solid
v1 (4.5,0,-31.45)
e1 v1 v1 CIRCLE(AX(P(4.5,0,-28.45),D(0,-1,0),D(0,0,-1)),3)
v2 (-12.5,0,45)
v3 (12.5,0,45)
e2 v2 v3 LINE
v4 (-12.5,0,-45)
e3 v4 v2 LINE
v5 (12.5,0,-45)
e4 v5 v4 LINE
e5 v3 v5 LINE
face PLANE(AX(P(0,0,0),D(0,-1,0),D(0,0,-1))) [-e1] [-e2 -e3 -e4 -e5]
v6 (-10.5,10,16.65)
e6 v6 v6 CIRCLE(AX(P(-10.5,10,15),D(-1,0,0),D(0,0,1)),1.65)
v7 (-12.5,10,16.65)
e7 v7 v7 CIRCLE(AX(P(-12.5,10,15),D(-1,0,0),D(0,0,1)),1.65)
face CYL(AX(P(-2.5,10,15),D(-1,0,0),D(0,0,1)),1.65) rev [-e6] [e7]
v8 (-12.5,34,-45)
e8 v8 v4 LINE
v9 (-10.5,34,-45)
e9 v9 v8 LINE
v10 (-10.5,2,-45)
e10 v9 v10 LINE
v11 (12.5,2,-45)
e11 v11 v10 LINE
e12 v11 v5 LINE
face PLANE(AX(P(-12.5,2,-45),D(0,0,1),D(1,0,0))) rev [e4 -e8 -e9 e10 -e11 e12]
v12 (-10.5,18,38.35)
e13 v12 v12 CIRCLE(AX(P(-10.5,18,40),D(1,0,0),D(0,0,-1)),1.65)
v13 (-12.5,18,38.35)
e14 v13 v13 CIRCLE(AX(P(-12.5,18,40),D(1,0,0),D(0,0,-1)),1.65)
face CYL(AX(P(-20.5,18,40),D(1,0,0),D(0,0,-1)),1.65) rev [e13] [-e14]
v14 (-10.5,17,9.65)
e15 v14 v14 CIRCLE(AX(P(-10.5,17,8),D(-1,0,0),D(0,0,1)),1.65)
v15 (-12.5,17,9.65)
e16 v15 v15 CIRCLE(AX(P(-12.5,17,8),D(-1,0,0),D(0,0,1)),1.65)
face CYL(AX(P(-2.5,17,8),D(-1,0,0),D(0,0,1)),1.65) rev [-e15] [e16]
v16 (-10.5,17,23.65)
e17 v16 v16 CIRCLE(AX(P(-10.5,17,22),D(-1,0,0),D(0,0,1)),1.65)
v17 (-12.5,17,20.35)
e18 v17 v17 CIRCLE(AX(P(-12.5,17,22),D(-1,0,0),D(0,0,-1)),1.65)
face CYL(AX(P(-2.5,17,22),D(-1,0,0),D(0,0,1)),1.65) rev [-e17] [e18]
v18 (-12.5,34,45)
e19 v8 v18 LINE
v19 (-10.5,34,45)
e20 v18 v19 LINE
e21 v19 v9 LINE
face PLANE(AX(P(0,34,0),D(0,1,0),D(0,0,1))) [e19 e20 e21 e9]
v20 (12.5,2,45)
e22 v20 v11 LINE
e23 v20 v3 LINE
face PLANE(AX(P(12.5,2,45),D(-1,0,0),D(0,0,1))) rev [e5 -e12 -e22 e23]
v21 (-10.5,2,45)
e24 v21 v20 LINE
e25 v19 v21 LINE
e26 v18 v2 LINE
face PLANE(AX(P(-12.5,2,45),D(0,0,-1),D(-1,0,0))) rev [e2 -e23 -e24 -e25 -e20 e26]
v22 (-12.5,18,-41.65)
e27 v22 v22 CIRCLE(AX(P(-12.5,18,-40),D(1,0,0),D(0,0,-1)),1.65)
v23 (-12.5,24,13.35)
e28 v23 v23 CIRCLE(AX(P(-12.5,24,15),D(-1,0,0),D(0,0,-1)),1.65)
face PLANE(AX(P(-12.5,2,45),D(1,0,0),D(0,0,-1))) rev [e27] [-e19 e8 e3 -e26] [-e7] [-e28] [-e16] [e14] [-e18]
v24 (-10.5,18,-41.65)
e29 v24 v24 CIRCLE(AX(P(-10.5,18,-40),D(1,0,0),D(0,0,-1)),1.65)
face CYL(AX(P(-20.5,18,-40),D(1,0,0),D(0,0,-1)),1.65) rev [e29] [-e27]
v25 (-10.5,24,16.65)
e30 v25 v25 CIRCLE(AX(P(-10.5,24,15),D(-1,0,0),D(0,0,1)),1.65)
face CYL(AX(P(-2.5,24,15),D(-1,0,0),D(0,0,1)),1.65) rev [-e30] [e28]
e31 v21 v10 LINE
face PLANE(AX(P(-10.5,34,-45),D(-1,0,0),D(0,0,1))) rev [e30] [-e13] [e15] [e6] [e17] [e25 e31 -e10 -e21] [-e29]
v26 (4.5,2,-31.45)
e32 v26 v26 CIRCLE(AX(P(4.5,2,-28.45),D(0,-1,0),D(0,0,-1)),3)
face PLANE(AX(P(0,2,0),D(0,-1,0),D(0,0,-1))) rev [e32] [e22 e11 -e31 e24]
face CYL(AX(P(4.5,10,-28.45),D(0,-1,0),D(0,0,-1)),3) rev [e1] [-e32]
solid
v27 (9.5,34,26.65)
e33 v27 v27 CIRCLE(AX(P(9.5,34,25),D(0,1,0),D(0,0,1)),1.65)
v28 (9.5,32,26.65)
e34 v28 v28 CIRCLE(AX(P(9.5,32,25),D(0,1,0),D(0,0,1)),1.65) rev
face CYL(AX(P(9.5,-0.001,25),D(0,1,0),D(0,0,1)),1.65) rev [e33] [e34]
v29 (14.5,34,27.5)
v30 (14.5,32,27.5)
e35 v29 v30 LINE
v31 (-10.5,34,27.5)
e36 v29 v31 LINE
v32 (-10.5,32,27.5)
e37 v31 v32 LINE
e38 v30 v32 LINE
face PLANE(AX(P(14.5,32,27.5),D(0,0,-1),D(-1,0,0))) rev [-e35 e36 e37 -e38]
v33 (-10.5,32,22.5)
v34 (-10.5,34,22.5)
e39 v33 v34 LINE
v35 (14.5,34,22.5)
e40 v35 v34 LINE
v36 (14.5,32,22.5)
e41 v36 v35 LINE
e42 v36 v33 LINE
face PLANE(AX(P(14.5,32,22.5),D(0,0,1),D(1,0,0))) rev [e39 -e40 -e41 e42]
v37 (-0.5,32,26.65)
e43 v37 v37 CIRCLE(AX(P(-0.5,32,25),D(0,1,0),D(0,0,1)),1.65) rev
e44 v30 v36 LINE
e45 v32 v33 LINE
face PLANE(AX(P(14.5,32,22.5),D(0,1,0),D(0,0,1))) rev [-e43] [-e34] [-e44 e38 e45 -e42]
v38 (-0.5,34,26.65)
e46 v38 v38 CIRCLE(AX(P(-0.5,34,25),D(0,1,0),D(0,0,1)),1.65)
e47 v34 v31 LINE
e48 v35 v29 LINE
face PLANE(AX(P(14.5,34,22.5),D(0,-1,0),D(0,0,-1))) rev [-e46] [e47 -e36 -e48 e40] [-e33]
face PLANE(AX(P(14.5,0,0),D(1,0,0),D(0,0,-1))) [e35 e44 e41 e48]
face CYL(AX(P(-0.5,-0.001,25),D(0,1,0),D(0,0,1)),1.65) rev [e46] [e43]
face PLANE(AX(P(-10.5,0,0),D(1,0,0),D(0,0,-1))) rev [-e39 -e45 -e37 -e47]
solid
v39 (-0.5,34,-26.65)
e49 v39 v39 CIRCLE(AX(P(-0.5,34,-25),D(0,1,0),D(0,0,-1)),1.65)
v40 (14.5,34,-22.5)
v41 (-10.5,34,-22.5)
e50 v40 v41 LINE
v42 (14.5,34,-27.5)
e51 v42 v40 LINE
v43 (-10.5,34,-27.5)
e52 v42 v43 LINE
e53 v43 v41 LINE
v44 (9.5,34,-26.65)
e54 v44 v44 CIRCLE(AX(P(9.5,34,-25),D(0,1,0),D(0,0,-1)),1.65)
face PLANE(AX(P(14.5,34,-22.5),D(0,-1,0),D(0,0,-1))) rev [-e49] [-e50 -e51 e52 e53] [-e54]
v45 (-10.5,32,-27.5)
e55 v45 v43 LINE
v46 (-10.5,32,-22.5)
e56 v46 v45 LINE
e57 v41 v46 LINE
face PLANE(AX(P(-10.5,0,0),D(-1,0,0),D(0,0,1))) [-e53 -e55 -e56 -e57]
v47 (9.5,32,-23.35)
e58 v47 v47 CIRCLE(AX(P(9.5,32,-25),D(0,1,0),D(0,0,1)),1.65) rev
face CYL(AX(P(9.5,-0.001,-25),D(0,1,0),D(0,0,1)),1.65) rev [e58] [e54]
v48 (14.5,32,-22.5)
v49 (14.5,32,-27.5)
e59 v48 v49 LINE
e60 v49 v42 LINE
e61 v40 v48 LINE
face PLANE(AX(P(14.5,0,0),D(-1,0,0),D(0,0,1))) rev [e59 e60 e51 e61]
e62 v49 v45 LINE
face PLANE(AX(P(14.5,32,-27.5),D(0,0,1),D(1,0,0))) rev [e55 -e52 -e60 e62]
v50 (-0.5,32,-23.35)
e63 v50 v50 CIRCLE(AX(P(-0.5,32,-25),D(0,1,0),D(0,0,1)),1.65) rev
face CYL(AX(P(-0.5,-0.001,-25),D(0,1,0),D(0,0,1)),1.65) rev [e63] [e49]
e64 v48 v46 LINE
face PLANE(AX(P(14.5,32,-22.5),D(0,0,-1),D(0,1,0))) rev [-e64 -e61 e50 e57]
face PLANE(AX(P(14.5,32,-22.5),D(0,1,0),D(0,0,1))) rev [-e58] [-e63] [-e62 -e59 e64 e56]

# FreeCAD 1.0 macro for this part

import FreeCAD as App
import Part
import Sketcher
from FreeCAD import Vector
Q = App.Units.Quantity

doc = App.newDocument("Part")
body = doc.addObject("PartDesign::Body", "Body")

# Sketch on XZ plane
sketch1 = body.newObject("Sketcher::SketchObject", "Sketch")
sketch1.AttachmentSupport = (doc.getObject("XZ_Plane"), [""])
sketch1.MapMode = "FlatFace"
sketch1.addGeometry([
    Part.LineSegment(Vector(-12.5, -45, 0), Vector(-12.5, 45, 0)),
    Part.LineSegment(Vector(-12.5, 45, 0), Vector(12.5, 45, 0)),
    Part.LineSegment(Vector(12.5, 45, 0), Vector(12.5, -45, 0)),
    Part.LineSegment(Vector(12.5, -45, 0), Vector(-12.5, -45, 0)),
], False)
sketch1.addConstraint([
    Sketcher.Constraint("Coincident", 0, 2, 1, 1),
    Sketcher.Constraint("Coincident", 1, 2, 2, 1),
    Sketcher.Constraint("Coincident", 2, 2, 3, 1),
    Sketcher.Constraint("Coincident", 3, 2, 0, 1),
    Sketcher.Constraint("Vertical", 0),
    Sketcher.Constraint("Horizontal", 1),
    Sketcher.Constraint("Vertical", 2),
    Sketcher.Constraint("Horizontal", 3),
    Sketcher.Constraint("Symmetric", 0, 2, 2, 2, -1, 1),
    Sketcher.Constraint("DistanceX", 1, 1, 1, 2, Q("25 mm")),
    Sketcher.Constraint("DistanceY", 0, 1, 0, 2, Q("90 mm")),
])
pad1 = body.newObject("PartDesign::Pad", "Pad")
pad1.Profile = sketch1
pad1.Length = 2
pad1.Reversed = True

# Sketch on XZ plane
sketch2 = body.newObject("Sketcher::SketchObject", "Sketch001")
sketch2.AttachmentSupport = (doc.getObject("XZ_Plane"), [""])
sketch2.MapMode = "FlatFace"
sketch2.AttachmentOffset = App.Placement(Vector(0, 0, -2), App.Rotation())
sketch2.addGeometry([
    Part.LineSegment(Vector(-12.5, -45, 0), Vector(-12.5, 45, 0)),
    Part.LineSegment(Vector(-12.5, 45, 0), Vector(-10.5, 45, 0)),
    Part.LineSegment(Vector(-10.5, 45, 0), Vector(-10.5, -45, 0)),
    Part.LineSegment(Vector(-10.5, -45, 0), Vector(-12.5, -45, 0)),
], False)
sketch2.addConstraint([
    Sketcher.Constraint("Coincident", 0, 2, 1, 1),
    Sketcher.Constraint("Coincident", 1, 2, 2, 1),
    Sketcher.Constraint("Coincident", 2, 2, 3, 1),
    Sketcher.Constraint("Coincident", 3, 2, 0, 1),
    Sketcher.Constraint("Vertical", 0),
    Sketcher.Constraint("Horizontal", 1),
    Sketcher.Constraint("Vertical", 2),
    Sketcher.Constraint("Horizontal", 3),
    Sketcher.Constraint("DistanceX", 1, 1, 1, 2, Q("2 mm")),
    Sketcher.Constraint("DistanceY", 0, 1, 0, 2, Q("90 mm")),
    Sketcher.Constraint("DistanceY", -1, 1, 0, 2, Q("45 mm")),
    Sketcher.Constraint("DistanceX", 0, 2, -1, 1, Q("12.5 mm")),
])
pad2 = body.newObject("PartDesign::Pad", "Pad001")
pad2.Profile = sketch2
pad2.Length = 32
pad2.Reversed = True

# Sketch on YZ plane
sketch3 = body.newObject("Sketcher::SketchObject", "Sketch002")
sketch3.AttachmentSupport = (doc.getObject("YZ_Plane"), [""])
sketch3.MapMode = "FlatFace"
sketch3.AttachmentOffset = App.Placement(Vector(0, 0, -12.5), App.Rotation())
sketch3.addGeometry([
    Part.Circle(Vector(17, 8, 0), Vector(0, 0, 1), 1.65),
    Part.Circle(Vector(17, 22, 0), Vector(0, 0, 1), 1.65),
    Part.Circle(Vector(10, 15, 0), Vector(0, 0, 1), 1.65),
    Part.Circle(Vector(24, 15, 0), Vector(0, 0, 1), 1.65),
], False)
sketch3.addConstraint([
    Sketcher.Constraint("Equal", 0, 1),
    Sketcher.Constraint("Equal", 1, 2),
    Sketcher.Constraint("Equal", 2, 3),
    Sketcher.Constraint("Horizontal", 2, 3, 3, 3),
    Sketcher.Constraint("Vertical", 0, 3, 1, 3),
    Sketcher.Constraint("Diameter", 0, Q("3.3 mm")),
    Sketcher.Constraint("DistanceX", -1, 1, 0, 3, Q("17 mm")),
    Sketcher.Constraint("DistanceY", -1, 1, 0, 3, Q("8 mm")),
    Sketcher.Constraint("DistanceY", -1, 1, 1, 3, Q("22 mm")),
    Sketcher.Constraint("DistanceX", -1, 1, 2, 3, Q("10 mm")),
    Sketcher.Constraint("DistanceY", -1, 1, 2, 3, Q("15 mm")),
    Sketcher.Constraint("DistanceX", -1, 1, 3, 3, Q("24 mm")),
])
pocket1 = body.newObject("PartDesign::Pocket", "Pocket")
pocket1.Profile = sketch3
pocket1.Length = 10
pocket1.Reversed = True

# Sketch on XZ plane
sketch4 = body.newObject("Sketcher::SketchObject", "Sketch003")
sketch4.AttachmentSupport = (doc.getObject("XZ_Plane"), [""])
sketch4.MapMode = "FlatFace"
sketch4.addGeometry(Part.Circle(Vector(4.5, -28.45, 0), Vector(0, 0, 1), 3), False)
sketch4.addConstraint([
    Sketcher.Constraint("Diameter", 0, Q("6 mm")),
    Sketcher.Constraint("DistanceX", -1, 1, 0, 3, Q("4.5 mm")),
    Sketcher.Constraint("DistanceY", 0, 3, -1, 1, Q("28.45 mm")),
])
pocket2 = body.newObject("PartDesign::Pocket", "Pocket001")
pocket2.Profile = sketch4
pocket2.Length = 10

# Sketch on YZ plane
sketch5 = body.newObject("Sketcher::SketchObject", "Sketch004")
sketch5.AttachmentSupport = (doc.getObject("YZ_Plane"), [""])
sketch5.MapMode = "FlatFace"
sketch5.AttachmentOffset = App.Placement(Vector(0, 0, -10.5), App.Rotation())
sketch5.addGeometry([
    Part.Circle(Vector(18, 40, 0), Vector(0, 0, 1), 1.65),
    Part.Circle(Vector(18, -40, 0), Vector(0, 0, 1), 1.65),
], False)
sketch5.addConstraint([
    Sketcher.Constraint("Equal", 0, 1),
    Sketcher.Constraint("Symmetric", 0, 3, 1, 3, -1),
    Sketcher.Constraint("Diameter", 0, Q("3.3 mm")),
    Sketcher.Constraint("DistanceX", -1, 1, 0, 3, Q("18 mm")),
    Sketcher.Constraint("DistanceY", -1, 1, 0, 3, Q("40 mm")),
])
pocket3 = body.newObject("PartDesign::Pocket", "Pocket002")
pocket3.Profile = sketch5
pocket3.Length = 10
body2 = doc.addObject("PartDesign::Body", "Body001")

# Sketch on YZ plane
sketch6 = body2.newObject("Sketcher::SketchObject", "Sketch005")
sketch6.AttachmentSupport = (doc.getObject("YZ_Plane001"), [""])
sketch6.MapMode = "FlatFace"
sketch6.AttachmentOffset = App.Placement(Vector(0, 0, -10.5), App.Rotation())
sketch6.addGeometry([
    Part.LineSegment(Vector(34, -22.5, 0), Vector(32, -22.5, 0)),
    Part.LineSegment(Vector(32, -22.5, 0), Vector(32, -27.5, 0)),
    Part.LineSegment(Vector(32, -27.5, 0), Vector(34, -27.5, 0)),
    Part.LineSegment(Vector(34, -27.5, 0), Vector(34, -22.5, 0)),
], False)
sketch6.addConstraint([
    Sketcher.Constraint("Coincident", 0, 2, 1, 1),
    Sketcher.Constraint("Coincident", 1, 2, 2, 1),
    Sketcher.Constraint("Coincident", 2, 2, 3, 1),
    Sketcher.Constraint("Coincident", 3, 2, 0, 1),
    Sketcher.Constraint("Horizontal", 0),
    Sketcher.Constraint("Vertical", 1),
    Sketcher.Constraint("Horizontal", 2),
    Sketcher.Constraint("Vertical", 3),
    Sketcher.Constraint("DistanceX", 0, 2, 0, 1, Q("2 mm")),
    Sketcher.Constraint("DistanceY", 1, 2, 1, 1, Q("5 mm")),
    Sketcher.Constraint("DistanceX", -1, 1, 0, 2, Q("32 mm")),
    Sketcher.Constraint("DistanceY", 0, 2, -1, 1, Q("22.5 mm")),
])
pad3 = body2.newObject("PartDesign::Pad", "Pad002")
pad3.Profile = sketch6
pad3.Length = 25
body3 = doc.addObject("PartDesign::Body", "Body002")

# Sketch on YZ plane
sketch7 = body3.newObject("Sketcher::SketchObject", "Sketch006")
sketch7.AttachmentSupport = (doc.getObject("YZ_Plane002"), [""])
sketch7.MapMode = "FlatFace"
sketch7.AttachmentOffset = App.Placement(Vector(0, 0, -10.5), App.Rotation())
sketch7.addGeometry([
    Part.LineSegment(Vector(34, 27.5, 0), Vector(32, 27.5, 0)),
    Part.LineSegment(Vector(32, 27.5, 0), Vector(32, 22.5, 0)),
    Part.LineSegment(Vector(32, 22.5, 0), Vector(34, 22.5, 0)),
    Part.LineSegment(Vector(34, 22.5, 0), Vector(34, 27.5, 0)),
], False)
sketch7.addConstraint([
    Sketcher.Constraint("Coincident", 0, 2, 1, 1),
    Sketcher.Constraint("Coincident", 1, 2, 2, 1),
    Sketcher.Constraint("Coincident", 2, 2, 3, 1),
    Sketcher.Constraint("Coincident", 3, 2, 0, 1),
    Sketcher.Constraint("Horizontal", 0),
    Sketcher.Constraint("Vertical", 1),
    Sketcher.Constraint("Horizontal", 2),
    Sketcher.Constraint("Vertical", 3),
    Sketcher.Constraint("DistanceX", 0, 2, 0, 1, Q("2 mm")),
    Sketcher.Constraint("DistanceY", 1, 2, 1, 1, Q("5 mm")),
    Sketcher.Constraint("DistanceX", -1, 1, 0, 2, Q("32 mm")),
    Sketcher.Constraint("DistanceY", -1, 1, 0, 2, Q("27.5 mm")),
])
pad4 = body3.newObject("PartDesign::Pad", "Pad003")
pad4.Profile = sketch7
pad4.Length = 25
body4 = doc.addObject("PartDesign::Body", "Body003")
body4.AllowCompound = True

# Sketch on XZ plane
sketch8 = body4.newObject("Sketcher::SketchObject", "Sketch007")
sketch8.AttachmentSupport = (doc.getObject("XZ_Plane003"), [""])
sketch8.MapMode = "FlatFace"
sketch8.AttachmentOffset = App.Placement(Vector(0, 0, -34), App.Rotation())
sketch8.addGeometry([
    Part.Circle(Vector(-0.5, 25, 0), Vector(0, 0, 1), 1.65),
    Part.Circle(Vector(9.5, 25, 0), Vector(0, 0, 1), 1.65),
    Part.Circle(Vector(9.5, -25, 0), Vector(0, 0, 1), 1.65),
    Part.Circle(Vector(-0.5, -25, 0), Vector(0, 0, 1), 1.65),
], False)
sketch8.addConstraint([
    Sketcher.Constraint("Equal", 0, 1),
    Sketcher.Constraint("Equal", 1, 2),
    Sketcher.Constraint("Equal", 2, 3),
    Sketcher.Constraint("Symmetric", 1, 3, 2, 3, -1),
    Sketcher.Constraint("Symmetric", 0, 3, 3, 3, -1),
    Sketcher.Constraint("Horizontal", 0, 3, 1, 3),
    Sketcher.Constraint("Diameter", 0, Q("3.3 mm")),
    Sketcher.Constraint("DistanceY", -1, 1, 0, 3, Q("25 mm")),
    Sketcher.Constraint("DistanceX", 0, 3, 1, 3, Q("10 mm")),
    Sketcher.Constraint("DistanceX", 0, 3, -1, 1, Q("0.5 mm")),
])
pad5 = body4.newObject("PartDesign::Pad", "Pad004")
pad5.Profile = sketch8
pad5.Length = 2
doc.recompute()

body5 = doc.addObject("PartDesign::Body", "Body004")
body5.BaseFeature = body4
boolean = body2.newObject("PartDesign::Boolean", "Boolean")
boolean.Type = "Cut"
boolean.addObjects([body5])
doc.recompute()

boolean2 = body3.newObject("PartDesign::Boolean", "Boolean001")
boolean2.Type = "Cut"
boolean2.addObjects([body4])

doc.recompute()
